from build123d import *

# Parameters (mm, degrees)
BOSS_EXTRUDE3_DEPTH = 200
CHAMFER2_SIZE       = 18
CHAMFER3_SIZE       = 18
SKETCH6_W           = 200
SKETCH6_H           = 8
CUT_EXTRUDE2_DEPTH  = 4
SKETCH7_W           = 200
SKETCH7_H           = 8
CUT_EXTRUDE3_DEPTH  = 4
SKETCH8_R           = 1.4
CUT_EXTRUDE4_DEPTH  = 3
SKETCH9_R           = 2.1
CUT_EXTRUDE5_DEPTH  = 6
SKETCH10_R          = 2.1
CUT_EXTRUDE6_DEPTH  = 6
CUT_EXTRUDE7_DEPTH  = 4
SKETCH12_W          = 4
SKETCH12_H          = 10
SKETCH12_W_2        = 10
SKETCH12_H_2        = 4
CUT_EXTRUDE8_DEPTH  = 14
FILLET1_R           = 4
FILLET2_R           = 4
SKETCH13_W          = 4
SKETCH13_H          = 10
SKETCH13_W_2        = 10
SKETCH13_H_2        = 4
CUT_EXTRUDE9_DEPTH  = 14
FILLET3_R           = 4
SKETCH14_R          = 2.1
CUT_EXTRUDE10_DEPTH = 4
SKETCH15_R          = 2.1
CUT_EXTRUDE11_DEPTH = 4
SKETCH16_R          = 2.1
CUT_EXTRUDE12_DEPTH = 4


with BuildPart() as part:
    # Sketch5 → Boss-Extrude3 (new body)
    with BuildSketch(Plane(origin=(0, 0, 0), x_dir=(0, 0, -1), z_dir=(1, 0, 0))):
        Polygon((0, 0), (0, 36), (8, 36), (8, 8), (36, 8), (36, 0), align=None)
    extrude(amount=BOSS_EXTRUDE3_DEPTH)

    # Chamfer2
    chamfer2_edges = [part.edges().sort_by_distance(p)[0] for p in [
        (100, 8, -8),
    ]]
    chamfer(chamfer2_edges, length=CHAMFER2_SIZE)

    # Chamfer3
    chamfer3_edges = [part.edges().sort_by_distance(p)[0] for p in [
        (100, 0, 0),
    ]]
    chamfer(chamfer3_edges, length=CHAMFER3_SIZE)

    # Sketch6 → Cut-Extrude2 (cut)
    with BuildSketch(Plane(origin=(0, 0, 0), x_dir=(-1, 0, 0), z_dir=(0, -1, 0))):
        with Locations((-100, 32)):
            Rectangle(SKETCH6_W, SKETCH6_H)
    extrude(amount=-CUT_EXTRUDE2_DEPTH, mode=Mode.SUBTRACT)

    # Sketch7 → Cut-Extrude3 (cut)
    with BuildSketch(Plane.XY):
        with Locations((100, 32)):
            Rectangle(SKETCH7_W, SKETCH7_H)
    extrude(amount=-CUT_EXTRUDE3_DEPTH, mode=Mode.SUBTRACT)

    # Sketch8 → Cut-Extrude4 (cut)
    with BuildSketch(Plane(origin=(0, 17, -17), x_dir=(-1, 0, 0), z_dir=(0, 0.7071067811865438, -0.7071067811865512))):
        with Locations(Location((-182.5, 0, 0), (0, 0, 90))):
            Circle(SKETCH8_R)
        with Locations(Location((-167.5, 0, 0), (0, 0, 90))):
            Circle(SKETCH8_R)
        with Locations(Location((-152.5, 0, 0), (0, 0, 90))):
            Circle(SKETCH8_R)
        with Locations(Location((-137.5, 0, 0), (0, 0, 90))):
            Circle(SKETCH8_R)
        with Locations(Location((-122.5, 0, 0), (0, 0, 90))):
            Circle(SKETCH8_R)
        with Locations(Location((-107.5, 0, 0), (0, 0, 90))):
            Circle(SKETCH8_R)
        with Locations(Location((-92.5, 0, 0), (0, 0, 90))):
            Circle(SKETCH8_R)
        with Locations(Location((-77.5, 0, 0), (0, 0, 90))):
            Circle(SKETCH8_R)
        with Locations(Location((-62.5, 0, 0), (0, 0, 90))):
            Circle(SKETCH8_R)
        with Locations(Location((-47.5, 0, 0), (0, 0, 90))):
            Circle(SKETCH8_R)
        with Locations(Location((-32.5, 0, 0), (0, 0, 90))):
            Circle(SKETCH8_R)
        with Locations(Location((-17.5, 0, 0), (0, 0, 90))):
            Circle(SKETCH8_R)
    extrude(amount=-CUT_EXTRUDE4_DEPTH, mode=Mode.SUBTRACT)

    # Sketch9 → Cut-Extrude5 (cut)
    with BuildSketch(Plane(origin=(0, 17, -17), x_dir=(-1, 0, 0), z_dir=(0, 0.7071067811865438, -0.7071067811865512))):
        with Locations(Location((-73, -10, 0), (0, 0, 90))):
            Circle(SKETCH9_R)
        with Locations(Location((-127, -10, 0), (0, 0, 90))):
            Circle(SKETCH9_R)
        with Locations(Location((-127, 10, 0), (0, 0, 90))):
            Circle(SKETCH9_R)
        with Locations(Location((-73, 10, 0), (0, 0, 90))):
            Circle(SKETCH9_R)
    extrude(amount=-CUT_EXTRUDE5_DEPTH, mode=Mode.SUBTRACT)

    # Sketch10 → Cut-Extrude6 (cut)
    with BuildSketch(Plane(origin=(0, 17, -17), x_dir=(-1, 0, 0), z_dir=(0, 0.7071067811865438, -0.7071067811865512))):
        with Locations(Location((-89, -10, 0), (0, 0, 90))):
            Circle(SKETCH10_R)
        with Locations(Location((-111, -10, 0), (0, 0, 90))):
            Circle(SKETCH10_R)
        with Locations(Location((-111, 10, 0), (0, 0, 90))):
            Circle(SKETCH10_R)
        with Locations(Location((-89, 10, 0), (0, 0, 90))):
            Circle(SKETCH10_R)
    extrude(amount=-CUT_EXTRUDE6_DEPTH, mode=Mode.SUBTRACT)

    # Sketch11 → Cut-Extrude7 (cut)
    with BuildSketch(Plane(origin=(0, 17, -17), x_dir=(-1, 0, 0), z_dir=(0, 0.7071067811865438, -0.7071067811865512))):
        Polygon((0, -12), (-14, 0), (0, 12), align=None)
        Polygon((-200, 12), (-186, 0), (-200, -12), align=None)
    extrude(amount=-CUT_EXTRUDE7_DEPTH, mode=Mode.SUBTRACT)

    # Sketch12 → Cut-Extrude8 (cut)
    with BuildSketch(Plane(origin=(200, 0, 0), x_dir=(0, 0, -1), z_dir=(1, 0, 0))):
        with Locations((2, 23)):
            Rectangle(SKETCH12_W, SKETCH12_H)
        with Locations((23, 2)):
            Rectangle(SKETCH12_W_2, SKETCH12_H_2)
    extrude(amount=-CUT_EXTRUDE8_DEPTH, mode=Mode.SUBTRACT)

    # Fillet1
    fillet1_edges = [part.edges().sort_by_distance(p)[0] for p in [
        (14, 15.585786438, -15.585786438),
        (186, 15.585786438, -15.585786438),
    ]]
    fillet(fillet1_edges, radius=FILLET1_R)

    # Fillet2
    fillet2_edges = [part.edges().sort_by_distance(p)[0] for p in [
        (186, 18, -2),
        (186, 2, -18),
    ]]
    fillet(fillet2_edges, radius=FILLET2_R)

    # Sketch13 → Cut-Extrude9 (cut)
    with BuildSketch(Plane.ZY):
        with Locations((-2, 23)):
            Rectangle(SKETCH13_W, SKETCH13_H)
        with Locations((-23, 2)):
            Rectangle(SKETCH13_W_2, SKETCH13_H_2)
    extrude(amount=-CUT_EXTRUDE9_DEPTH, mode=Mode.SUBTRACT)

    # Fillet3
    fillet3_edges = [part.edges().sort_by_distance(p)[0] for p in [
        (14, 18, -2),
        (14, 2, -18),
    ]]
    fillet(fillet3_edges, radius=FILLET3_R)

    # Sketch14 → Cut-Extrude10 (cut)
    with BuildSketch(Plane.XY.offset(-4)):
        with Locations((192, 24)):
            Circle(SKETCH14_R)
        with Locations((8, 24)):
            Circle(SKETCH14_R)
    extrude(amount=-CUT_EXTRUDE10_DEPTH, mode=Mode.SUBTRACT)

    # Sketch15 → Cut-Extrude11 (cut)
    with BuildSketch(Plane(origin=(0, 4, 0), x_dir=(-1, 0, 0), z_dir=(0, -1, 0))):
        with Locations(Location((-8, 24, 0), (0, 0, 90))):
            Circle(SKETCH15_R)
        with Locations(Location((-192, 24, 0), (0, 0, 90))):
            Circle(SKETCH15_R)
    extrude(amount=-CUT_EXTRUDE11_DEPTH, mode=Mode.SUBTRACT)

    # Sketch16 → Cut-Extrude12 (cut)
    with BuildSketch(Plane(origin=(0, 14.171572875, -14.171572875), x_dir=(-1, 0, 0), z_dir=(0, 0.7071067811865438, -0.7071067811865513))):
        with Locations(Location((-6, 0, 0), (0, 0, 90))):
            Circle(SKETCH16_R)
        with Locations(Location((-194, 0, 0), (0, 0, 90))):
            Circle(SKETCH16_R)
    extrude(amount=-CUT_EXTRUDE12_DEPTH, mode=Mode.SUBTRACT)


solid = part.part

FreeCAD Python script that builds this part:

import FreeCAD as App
import Part
import Sketcher
from FreeCAD import Vector
Q = App.Units.Quantity


def edges_at(feature, points):
    """Names of the edges that pass closest to the given points."""
    edges = feature.Shape.Edges
    near = lambda p: min(range(len(edges)), key=lambda i: edges[i].distToShape(Part.Vertex(*p))[0])
    return sorted({f"Edge{near(p) + 1}" for p in points})


def add_polygon(sketch, points):
    """Adds a closed chain of lines whose ends are joined by coincident constraints."""
    first, n = sketch.GeometryCount, len(points)
    for a, b in zip(points, points[1:] + points[:1]):
        sketch.addGeometry(Part.LineSegment(App.Vector(*a, 0), App.Vector(*b, 0)), False)
    for i in range(n):
        sketch.addConstraint(Sketcher.Constraint("Coincident", first + i, 2, first + (i + 1) % n, 1))

doc = App.newDocument("Part")
body = doc.addObject("PartDesign::Body", "Body")

sketch1 = body.newObject("Sketcher::SketchObject", "Sketch")
sketch1.AttachmentSupport = (doc.getObject("YZ_Plane"), [""])
sketch1.MapMode = "FlatFace"
add_polygon(sketch1, [(36, 0), (0, 0), (0, -36), (8, -36), (8, -8), (36, -8)])
sketch1.addConstraint(Sketcher.Constraint("Horizontal", 0))
sketch1.addConstraint(Sketcher.Constraint("Vertical", 1))
sketch1.addConstraint(Sketcher.Constraint("Horizontal", 2))
sketch1.addConstraint(Sketcher.Constraint("Vertical", 3))
sketch1.addConstraint(Sketcher.Constraint("Horizontal", 4))
sketch1.addConstraint(Sketcher.Constraint("Vertical", 5))
sketch1.addConstraint(Sketcher.Constraint("Coincident", 0, 2, -1, 1))
sketch1.addConstraint(Sketcher.Constraint("Equal", 0, 1))
sketch1.addConstraint(Sketcher.Constraint("Equal", 4, 3))
sketch1.addConstraint(Sketcher.Constraint("DistanceX", 0, 2, 0, 1, Q("36 mm")))
sketch1.addConstraint(Sketcher.Constraint("DistanceX", 2, 1, 2, 2, Q("8 mm")))
pad1 = body.newObject("PartDesign::Pad", "Pad")
pad1.Profile = sketch1
pad1.Length = 200
doc.recompute()

chamfer = body.newObject("PartDesign::Chamfer", "Chamfer")
chamfer.Base = (pad1, edges_at(pad1, [(100, 8, -8)]))
chamfer.Size = 18
doc.recompute()

chamfer2 = body.newObject("PartDesign::Chamfer", "Chamfer001")
chamfer2.Base = (chamfer, edges_at(chamfer, [(100, 0, 0)]))
chamfer2.Size = 18

sketch2 = body.newObject("Sketcher::SketchObject", "Sketch001")
sketch2.AttachmentSupport = (doc.getObject("XZ_Plane"), [""])
sketch2.MapMode = "FlatFace"
add_polygon(sketch2, [(200, -36), (200, -28), (0, -28), (0, -36)])
sketch2.addConstraint(Sketcher.Constraint("Vertical", 0))
sketch2.addConstraint(Sketcher.Constraint("Horizontal", 1))
sketch2.addConstraint(Sketcher.Constraint("Vertical", 2))
sketch2.addConstraint(Sketcher.Constraint("Horizontal", 3))
sketch2.addConstraint(Sketcher.Constraint("PointOnObject", 1, 2, -2))
sketch2.addConstraint(Sketcher.Constraint("DistanceX", 1, 2, 1, 1, Q("200 mm")))
sketch2.addConstraint(Sketcher.Constraint("DistanceY", 0, 1, 0, 2, Q("8 mm")))
sketch2.addConstraint(Sketcher.Constraint("DistanceY", 0, 2, -1, 1, Q("28 mm")))
pocket1 = body.newObject("PartDesign::Pocket", "Pocket")
pocket1.Profile = sketch2
pocket1.Length = 4

sketch3 = body.newObject("Sketcher::SketchObject", "Sketch002")
sketch3.AttachmentSupport = (doc.getObject("XY_Plane"), [""])
sketch3.MapMode = "FlatFace"
add_polygon(sketch3, [(0, 36), (0, 28), (200, 28), (200, 36)])
sketch3.addConstraint(Sketcher.Constraint("Vertical", 0))
sketch3.addConstraint(Sketcher.Constraint("Horizontal", 1))
sketch3.addConstraint(Sketcher.Constraint("Vertical", 2))
sketch3.addConstraint(Sketcher.Constraint("Horizontal", 3))
sketch3.addConstraint(Sketcher.Constraint("PointOnObject", 0, 2, -2))
sketch3.addConstraint(Sketcher.Constraint("DistanceX", 1, 1, 1, 2, Q("200 mm")))
sketch3.addConstraint(Sketcher.Constraint("DistanceY", 0, 2, 0, 1, Q("8 mm")))
sketch3.addConstraint(Sketcher.Constraint("DistanceY", -1, 1, 0, 2, Q("28 mm")))
pocket2 = body.newObject("PartDesign::Pocket", "Pocket001")
pocket2.Profile = sketch3
pocket2.Length = 4

sketch4 = body.newObject("Sketcher::SketchObject", "Sketch003")
sketch4.Placement = App.Placement(Vector(0, 17, -17), App.Rotation(Vector(-1, 0, 0), Vector(0, 0.707106781, 0.707106781), Vector(0, 0.707106781, -0.707106781), "ZXY"))
sketch4.addGeometry(Part.Circle(Vector(-182.5, 0, 0), Vector(0, 0, 1), 1.4), False)
sketch4.addGeometry(Part.Circle(Vector(-167.5, 0, 0), Vector(0, 0, 1), 1.4), False)
sketch4.addGeometry(Part.Circle(Vector(-152.5, 0, 0), Vector(0, 0, 1), 1.4), False)
sketch4.addGeometry(Part.Circle(Vector(-137.5, 0, 0), Vector(0, 0, 1), 1.4), False)
sketch4.addGeometry(Part.Circle(Vector(-122.5, 0, 0), Vector(0, 0, 1), 1.4), False)
sketch4.addGeometry(Part.Circle(Vector(-107.5, 0, 0), Vector(0, 0, 1), 1.4), False)
sketch4.addGeometry(Part.Circle(Vector(-92.5, 0, 0), Vector(0, 0, 1), 1.4), False)
sketch4.addGeometry(Part.Circle(Vector(-77.5, 0, 0), Vector(0, 0, 1), 1.4), False)
sketch4.addGeometry(Part.Circle(Vector(-62.5, 0, 0), Vector(0, 0, 1), 1.4), False)
sketch4.addGeometry(Part.Circle(Vector(-47.5, 0, 0), Vector(0, 0, 1), 1.4), False)
sketch4.addGeometry(Part.Circle(Vector(-32.5, 0, 0), Vector(0, 0, 1), 1.4), False)
sketch4.addGeometry(Part.Circle(Vector(-17.5, 0, 0), Vector(0, 0, 1), 1.4), False)
sketch4.addConstraint(Sketcher.Constraint("Equal", 0, 1))
sketch4.addConstraint(Sketcher.Constraint("Equal", 1, 2))
sketch4.addConstraint(Sketcher.Constraint("Equal", 2, 3))
sketch4.addConstraint(Sketcher.Constraint("Equal", 3, 4))
sketch4.addConstraint(Sketcher.Constraint("Equal", 4, 5))
sketch4.addConstraint(Sketcher.Constraint("Equal", 5, 6))
sketch4.addConstraint(Sketcher.Constraint("Equal", 6, 7))
sketch4.addConstraint(Sketcher.Constraint("Equal", 7, 8))
sketch4.addConstraint(Sketcher.Constraint("Equal", 8, 9))
sketch4.addConstraint(Sketcher.Constraint("Equal", 9, 10))
sketch4.addConstraint(Sketcher.Constraint("Equal", 10, 11))
sketch4.addConstraint(Sketcher.Constraint("PointOnObject", 0, 3, -1))
sketch4.addConstraint(Sketcher.Constraint("PointOnObject", 1, 3, -1))
sketch4.addConstraint(Sketcher.Constraint("PointOnObject", 2, 3, -1))
sketch4.addConstraint(Sketcher.Constraint("PointOnObject", 3, 3, -1))
sketch4.addConstraint(Sketcher.Constraint("PointOnObject", 4, 3, -1))
sketch4.addConstraint(Sketcher.Constraint("PointOnObject", 5, 3, -1))
sketch4.addConstraint(Sketcher.Constraint("PointOnObject", 6, 3, -1))
sketch4.addConstraint(Sketcher.Constraint("PointOnObject", 7, 3, -1))
sketch4.addConstraint(Sketcher.Constraint("PointOnObject", 8, 3, -1))
sketch4.addConstraint(Sketcher.Constraint("PointOnObject", 9, 3, -1))
sketch4.addConstraint(Sketcher.Constraint("PointOnObject", 10, 3, -1))
sketch4.addConstraint(Sketcher.Constraint("PointOnObject", 11, 3, -1))
sketch4.addConstraint(Sketcher.Constraint("Diameter", 0, Q("2.8 mm")))
sketch4.addConstraint(Sketcher.Constraint("DistanceX", 0, 3, 1, 3, Q("15 mm")))
sketch4.addConstraint(Sketcher.Constraint("DistanceX", 1, 3, 2, 3, Q("15 mm")))
sketch4.addConstraint(Sketcher.Constraint("DistanceX", 2, 3, 3, 3, Q("15 mm")))
sketch4.addConstraint(Sketcher.Constraint("DistanceX", 3, 3, 4, 3, Q("15 mm")))
sketch4.addConstraint(Sketcher.Constraint("DistanceX", 4, 3, 5, 3, Q("15 mm")))
sketch4.addConstraint(Sketcher.Constraint("DistanceX", 5, 3, 6, 3, Q("15 mm")))
sketch4.addConstraint(Sketcher.Constraint("DistanceX", 6, 3, 7, 3, Q("15 mm")))
sketch4.addConstraint(Sketcher.Constraint("DistanceX", 7, 3, 8, 3, Q("15 mm")))
sketch4.addConstraint(Sketcher.Constraint("DistanceX", 8, 3, 9, 3, Q("15 mm")))
sketch4.addConstraint(Sketcher.Constraint("DistanceX", 9, 3, 10, 3, Q("15 mm")))
sketch4.addConstraint(Sketcher.Constraint("DistanceX", 10, 3, 11, 3, Q("15 mm")))
sketch4.addConstraint(Sketcher.Constraint("DistanceX", 0, 3, -1, 1, Q("182.5 mm")))
pocket3 = body.newObject("PartDesign::Pocket", "Pocket002")
pocket3.Profile = sketch4
pocket3.Length = 3

sketch5 = body.newObject("Sketcher::SketchObject", "Sketch004")
sketch5.Placement = App.Placement(Vector(0, 17, -17), App.Rotation(Vector(-1, 0, 0), Vector(0, 0.707106781, 0.707106781), Vector(0, 0.707106781, -0.707106781), "ZXY"))
sketch5.addGeometry(Part.Circle(Vector(-73, -10, 0), Vector(0, 0, 1), 2.1), False)
sketch5.addGeometry(Part.Circle(Vector(-127, -10, 0), Vector(0, 0, 1), 2.1), False)
sketch5.addGeometry(Part.Circle(Vector(-127, 10, 0), Vector(0, 0, 1), 2.1), False)
sketch5.addGeometry(Part.Circle(Vector(-73, 10, 0), Vector(0, 0, 1), 2.1), False)
sketch5.addConstraint(Sketcher.Constraint("Equal", 0, 1))
sketch5.addConstraint(Sketcher.Constraint("Equal", 1, 2))
sketch5.addConstraint(Sketcher.Constraint("Equal", 2, 3))
sketch5.addConstraint(Sketcher.Constraint("Symmetric", 1, 3, 2, 3, -1))
sketch5.addConstraint(Sketcher.Constraint("Symmetric", 0, 3, 3, 3, -1))
sketch5.addConstraint(Sketcher.Constraint("Horizontal", 0, 3, 1, 3))
sketch5.addConstraint(Sketcher.Constraint("Diameter", 0, Q("4.2 mm")))
sketch5.addConstraint(Sketcher.Constraint("DistanceX", 0, 3, -1, 1, Q("73 mm")))
sketch5.addConstraint(Sketcher.Constraint("DistanceY", 0, 3, -1, 1, Q("10 mm")))
sketch5.addConstraint(Sketcher.Constraint("DistanceX", 1, 3, -1, 1, Q("127 mm")))
pocket4 = body.newObject("PartDesign::Pocket", "Pocket003")
pocket4.Profile = sketch5
pocket4.Length = 6

sketch6 = body.newObject("Sketcher::SketchObject", "Sketch005")
sketch6.Placement = App.Placement(Vector(0, 17, -17), App.Rotation(Vector(-1, 0, 0), Vector(0, 0.707106781, 0.707106781), Vector(0, 0.707106781, -0.707106781), "ZXY"))
sketch6.addGeometry(Part.Circle(Vector(-89, -10, 0), Vector(0, 0, 1), 2.1), False)
sketch6.addGeometry(Part.Circle(Vector(-111, -10, 0), Vector(0, 0, 1), 2.1), False)
sketch6.addGeometry(Part.Circle(Vector(-111, 10, 0), Vector(0, 0, 1), 2.1), False)
sketch6.addGeometry(Part.Circle(Vector(-89, 10, 0), Vector(0, 0, 1), 2.1), False)
sketch6.addConstraint(Sketcher.Constraint("Equal", 0, 1))
sketch6.addConstraint(Sketcher.Constraint("Equal", 1, 2))
sketch6.addConstraint(Sketcher.Constraint("Equal", 2, 3))
sketch6.addConstraint(Sketcher.Constraint("Symmetric", 1, 3, 2, 3, -1))
sketch6.addConstraint(Sketcher.Constraint("Symmetric", 0, 3, 3, 3, -1))
sketch6.addConstraint(Sketcher.Constraint("Horizontal", 0, 3, 1, 3))
sketch6.addConstraint(Sketcher.Constraint("Diameter", 0, Q("4.2 mm")))
sketch6.addConstraint(Sketcher.Constraint("DistanceX", 0, 3, -1, 1, Q("89 mm")))
sketch6.addConstraint(Sketcher.Constraint("DistanceY", 0, 3, -1, 1, Q("10 mm")))
sketch6.addConstraint(Sketcher.Constraint("DistanceX", 1, 3, -1, 1, Q("111 mm")))
pocket5 = body.newObject("PartDesign::Pocket", "Pocket004")
pocket5.Profile = sketch6
pocket5.Length = 6

sketch7 = body.newObject("Sketcher::SketchObject", "Sketch006")
sketch7.Placement = App.Placement(Vector(0, 17, -17), App.Rotation(Vector(-1, 0, 0), Vector(0, 0.707106781, 0.707106781), Vector(0, 0.707106781, -0.707106781), "ZXY"))
add_polygon(sketch7, [(-14, 0), (0, -12), (0, 12)])
add_polygon(sketch7, [(-186, 0), (-200, 12), (-200, -12)])
sketch7.addConstraint(Sketcher.Constraint("Vertical", 1))
sketch7.addConstraint(Sketcher.Constraint("Vertical", 4))
sketch7.addConstraint(Sketcher.Constraint("Symmetric", 0, 2, 1, 2, -1, 1))
sketch7.addConstraint(Sketcher.Constraint("PointOnObject", 2, 2, -1))
sketch7.addConstraint(Sketcher.Constraint("PointOnObject", 5, 2, -1))
sketch7.addConstraint(Sketcher.Constraint("Parallel", 0, 3))
sketch7.addConstraint(Sketcher.Constraint("Parallel", 2, 5))
sketch7.addConstraint(Sketcher.Constraint("Horizontal", 1, 2, 3, 2))
sketch7.addConstraint(Sketcher.Constraint("DistanceY", 1, 1, 1, 2, Q("24 mm")))
sketch7.addConstraint(Sketcher.Constraint("DistanceX", 2, 2, -1, 1, Q("14 mm")))
sketch7.addConstraint(Sketcher.Constraint("DistanceX", 3, 2, -1, 1, Q("200 mm")))
pocket6 = body.newObject("PartDesign::Pocket", "Pocket005")
pocket6.Profile = sketch7
pocket6.Length = 4

sketch8 = body.newObject("Sketcher::SketchObject", "Sketch007")
sketch8.AttachmentSupport = (doc.getObject("YZ_Plane"), [""])
sketch8.MapMode = "FlatFace"
sketch8.AttachmentOffset = App.Placement(Vector(0, 0, 200), App.Rotation())
add_polygon(sketch8, [(28, 0), (18, 0), (18, -4), (28, -4)])
add_polygon(sketch8, [(4, -18), (0, -18), (0, -28), (4, -28)])
sketch8.addConstraint(Sketcher.Constraint("Horizontal", 0))
sketch8.addConstraint(Sketcher.Constraint("Vertical", 1))
sketch8.addConstraint(Sketcher.Constraint("Horizontal", 2))
sketch8.addConstraint(Sketcher.Constraint("Vertical", 3))
sketch8.addConstraint(Sketcher.Constraint("Horizontal", 4))
sketch8.addConstraint(Sketcher.Constraint("Vertical", 5))
sketch8.addConstraint(Sketcher.Constraint("Horizontal", 6))
sketch8.addConstraint(Sketcher.Constraint("Vertical", 7))
sketch8.addConstraint(Sketcher.Constraint("PointOnObject", 0, 2, -1))
sketch8.addConstraint(Sketcher.Constraint("PointOnObject", 4, 2, -2))
sketch8.addConstraint(Sketcher.Constraint("Equal", 6, 1))
sketch8.addConstraint(Sketcher.Constraint("Equal", 2, 5))
sketch8.addConstraint(Sketcher.Constraint("DistanceX", 0, 2, 0, 1, Q("10 mm")))
sketch8.addConstraint(Sketcher.Constraint("DistanceX", 4, 2, 4, 1, Q("4 mm")))
sketch8.addConstraint(Sketcher.Constraint("DistanceX", -1, 1, 0, 2, Q("18 mm")))
sketch8.addConstraint(Sketcher.Constraint("DistanceY", 4, 2, -1, 1, Q("18 mm")))
pocket7 = body.newObject("PartDesign::Pocket", "Pocket006")
pocket7.Profile = sketch8
pocket7.Length = 14
doc.recompute()

fillet = body.newObject("PartDesign::Fillet", "Fillet")
fillet.Base = (pocket7, edges_at(pocket7, [(14, 15.586, -15.586), (186, 15.586, -15.586)]))
fillet.Radius = 4
doc.recompute()

fillet2 = body.newObject("PartDesign::Fillet", "Fillet001")
fillet2.Base = (fillet, edges_at(fillet, [(186, 18, -2), (186, 2, -18)]))
fillet2.Radius = 4

sketch9 = body.newObject("Sketcher::SketchObject", "Sketch008")
sketch9.AttachmentSupport = (doc.getObject("YZ_Plane"), [""])
sketch9.MapMode = "FlatFace"
add_polygon(sketch9, [(28, -4), (18, -4), (18, 0), (28, 0)])
add_polygon(sketch9, [(4, -28), (0, -28), (0, -18), (4, -18)])
sketch9.addConstraint(Sketcher.Constraint("Horizontal", 0))
sketch9.addConstraint(Sketcher.Constraint("Vertical", 1))
sketch9.addConstraint(Sketcher.Constraint("Horizontal", 2))
sketch9.addConstraint(Sketcher.Constraint("Vertical", 3))
sketch9.addConstraint(Sketcher.Constraint("Horizontal", 4))
sketch9.addConstraint(Sketcher.Constraint("Vertical", 5))
sketch9.addConstraint(Sketcher.Constraint("Horizontal", 6))
sketch9.addConstraint(Sketcher.Constraint("Vertical", 7))
sketch9.addConstraint(Sketcher.Constraint("PointOnObject", 1, 2, -1))
sketch9.addConstraint(Sketcher.Constraint("PointOnObject", 4, 2, -2))
sketch9.addConstraint(Sketcher.Constraint("Equal", 6, 1))
sketch9.addConstraint(Sketcher.Constraint("Equal", 2, 5))
sketch9.addConstraint(Sketcher.Constraint("DistanceX", 0, 2, 0, 1, Q("10 mm")))
sketch9.addConstraint(Sketcher.Constraint("DistanceX", 4, 2, 4, 1, Q("4 mm")))
sketch9.addConstraint(Sketcher.Constraint("DistanceX", -1, 1, 0, 2, Q("18 mm")))
sketch9.addConstraint(Sketcher.Constraint("DistanceY", 4, 2, -1, 1, Q("28 mm")))
pocket8 = body.newObject("PartDesign::Pocket", "Pocket007")
pocket8.Profile = sketch9
pocket8.Length = 14
pocket8.Reversed = True
doc.recompute()

fillet3 = body.newObject("PartDesign::Fillet", "Fillet002")
fillet3.Base = (pocket8, edges_at(pocket8, [(14, 18, -2), (14, 2, -18)]))
fillet3.Radius = 4

sketch10 = body.newObject("Sketcher::SketchObject", "Sketch009")
sketch10.AttachmentSupport = (doc.getObject("XY_Plane"), [""])
sketch10.MapMode = "FlatFace"
sketch10.AttachmentOffset = App.Placement(Vector(0, 0, -4), App.Rotation())
sketch10.addGeometry(Part.Circle(Vector(192, 24, 0), Vector(0, 0, 1), 2.1), False)
sketch10.addGeometry(Part.Circle(Vector(8, 24, 0), Vector(0, 0, 1), 2.1), False)
sketch10.addConstraint(Sketcher.Constraint("Equal", 0, 1))
sketch10.addConstraint(Sketcher.Constraint("Horizontal", 0, 3, 1, 3))
sketch10.addConstraint(Sketcher.Constraint("Diameter", 0, Q("4.2 mm")))
sketch10.addConstraint(Sketcher.Constraint("DistanceX", -1, 1, 0, 3, Q("192 mm")))
sketch10.addConstraint(Sketcher.Constraint("DistanceY", -1, 1, 0, 3, Q("24 mm")))
sketch10.addConstraint(Sketcher.Constraint("DistanceX", -1, 1, 1, 3, Q("8 mm")))
pocket9 = body.newObject("PartDesign::Pocket", "Pocket008")
pocket9.Profile = sketch10
pocket9.Length = 4

sketch11 = body.newObject("Sketcher::SketchObject", "Sketch010")
sketch11.AttachmentSupport = (doc.getObject("XZ_Plane"), [""])
sketch11.MapMode = "FlatFace"
sketch11.AttachmentOffset = App.Placement(Vector(0, 0, -4), App.Rotation())
sketch11.addGeometry(Part.Circle(Vector(8, -24, 0), Vector(0, 0, 1), 2.1), False)
sketch11.addGeometry(Part.Circle(Vector(192, -24, 0), Vector(0, 0, 1), 2.1), False)
sketch11.addConstraint(Sketcher.Constraint("Equal", 0, 1))
sketch11.addConstraint(Sketcher.Constraint("Horizontal", 0, 3, 1, 3))
sketch11.addConstraint(Sketcher.Constraint("Diameter", 0, Q("4.2 mm")))
sketch11.addConstraint(Sketcher.Constraint("DistanceX", -1, 1, 0, 3, Q("8 mm")))
sketch11.addConstraint(Sketcher.Constraint("DistanceY", 0, 3, -1, 1, Q("24 mm")))
sketch11.addConstraint(Sketcher.Constraint("DistanceX", -1, 1, 1, 3, Q("192 mm")))
pocket10 = body.newObject("PartDesign::Pocket", "Pocket009")
pocket10.Profile = sketch11
pocket10.Length = 4

sketch12 = body.newObject("Sketcher::SketchObject", "Sketch011")
sketch12.Placement = App.Placement(Vector(0, 14.171573, -14.171573), App.Rotation(Vector(-1, 0, 0), Vector(0, 0.707106781, 0.707106781), Vector(0, 0.707106781, -0.707106781), "ZXY"))
sketch12.addGeometry(Part.Circle(Vector(-6, 0, 0), Vector(0, 0, 1), 2.1), False)
sketch12.addGeometry(Part.Circle(Vector(-194, 0, 0), Vector(0, 0, 1), 2.1), False)
sketch12.addConstraint(Sketcher.Constraint("Equal", 0, 1))
sketch12.addConstraint(Sketcher.Constraint("PointOnObject", 0, 3, -1))
sketch12.addConstraint(Sketcher.Constraint("PointOnObject", 1, 3, -1))
sketch12.addConstraint(Sketcher.Constraint("Diameter", 0, Q("4.2 mm")))
sketch12.addConstraint(Sketcher.Constraint("DistanceX", 0, 3, -1, 1, Q("6 mm")))
sketch12.addConstraint(Sketcher.Constraint("DistanceX", 1, 3, -1, 1, Q("194 mm")))
pocket11 = body.newObject("PartDesign::Pocket", "Pocket010")
pocket11.Profile = sketch12
pocket11.Length = 4

doc.recompute()
